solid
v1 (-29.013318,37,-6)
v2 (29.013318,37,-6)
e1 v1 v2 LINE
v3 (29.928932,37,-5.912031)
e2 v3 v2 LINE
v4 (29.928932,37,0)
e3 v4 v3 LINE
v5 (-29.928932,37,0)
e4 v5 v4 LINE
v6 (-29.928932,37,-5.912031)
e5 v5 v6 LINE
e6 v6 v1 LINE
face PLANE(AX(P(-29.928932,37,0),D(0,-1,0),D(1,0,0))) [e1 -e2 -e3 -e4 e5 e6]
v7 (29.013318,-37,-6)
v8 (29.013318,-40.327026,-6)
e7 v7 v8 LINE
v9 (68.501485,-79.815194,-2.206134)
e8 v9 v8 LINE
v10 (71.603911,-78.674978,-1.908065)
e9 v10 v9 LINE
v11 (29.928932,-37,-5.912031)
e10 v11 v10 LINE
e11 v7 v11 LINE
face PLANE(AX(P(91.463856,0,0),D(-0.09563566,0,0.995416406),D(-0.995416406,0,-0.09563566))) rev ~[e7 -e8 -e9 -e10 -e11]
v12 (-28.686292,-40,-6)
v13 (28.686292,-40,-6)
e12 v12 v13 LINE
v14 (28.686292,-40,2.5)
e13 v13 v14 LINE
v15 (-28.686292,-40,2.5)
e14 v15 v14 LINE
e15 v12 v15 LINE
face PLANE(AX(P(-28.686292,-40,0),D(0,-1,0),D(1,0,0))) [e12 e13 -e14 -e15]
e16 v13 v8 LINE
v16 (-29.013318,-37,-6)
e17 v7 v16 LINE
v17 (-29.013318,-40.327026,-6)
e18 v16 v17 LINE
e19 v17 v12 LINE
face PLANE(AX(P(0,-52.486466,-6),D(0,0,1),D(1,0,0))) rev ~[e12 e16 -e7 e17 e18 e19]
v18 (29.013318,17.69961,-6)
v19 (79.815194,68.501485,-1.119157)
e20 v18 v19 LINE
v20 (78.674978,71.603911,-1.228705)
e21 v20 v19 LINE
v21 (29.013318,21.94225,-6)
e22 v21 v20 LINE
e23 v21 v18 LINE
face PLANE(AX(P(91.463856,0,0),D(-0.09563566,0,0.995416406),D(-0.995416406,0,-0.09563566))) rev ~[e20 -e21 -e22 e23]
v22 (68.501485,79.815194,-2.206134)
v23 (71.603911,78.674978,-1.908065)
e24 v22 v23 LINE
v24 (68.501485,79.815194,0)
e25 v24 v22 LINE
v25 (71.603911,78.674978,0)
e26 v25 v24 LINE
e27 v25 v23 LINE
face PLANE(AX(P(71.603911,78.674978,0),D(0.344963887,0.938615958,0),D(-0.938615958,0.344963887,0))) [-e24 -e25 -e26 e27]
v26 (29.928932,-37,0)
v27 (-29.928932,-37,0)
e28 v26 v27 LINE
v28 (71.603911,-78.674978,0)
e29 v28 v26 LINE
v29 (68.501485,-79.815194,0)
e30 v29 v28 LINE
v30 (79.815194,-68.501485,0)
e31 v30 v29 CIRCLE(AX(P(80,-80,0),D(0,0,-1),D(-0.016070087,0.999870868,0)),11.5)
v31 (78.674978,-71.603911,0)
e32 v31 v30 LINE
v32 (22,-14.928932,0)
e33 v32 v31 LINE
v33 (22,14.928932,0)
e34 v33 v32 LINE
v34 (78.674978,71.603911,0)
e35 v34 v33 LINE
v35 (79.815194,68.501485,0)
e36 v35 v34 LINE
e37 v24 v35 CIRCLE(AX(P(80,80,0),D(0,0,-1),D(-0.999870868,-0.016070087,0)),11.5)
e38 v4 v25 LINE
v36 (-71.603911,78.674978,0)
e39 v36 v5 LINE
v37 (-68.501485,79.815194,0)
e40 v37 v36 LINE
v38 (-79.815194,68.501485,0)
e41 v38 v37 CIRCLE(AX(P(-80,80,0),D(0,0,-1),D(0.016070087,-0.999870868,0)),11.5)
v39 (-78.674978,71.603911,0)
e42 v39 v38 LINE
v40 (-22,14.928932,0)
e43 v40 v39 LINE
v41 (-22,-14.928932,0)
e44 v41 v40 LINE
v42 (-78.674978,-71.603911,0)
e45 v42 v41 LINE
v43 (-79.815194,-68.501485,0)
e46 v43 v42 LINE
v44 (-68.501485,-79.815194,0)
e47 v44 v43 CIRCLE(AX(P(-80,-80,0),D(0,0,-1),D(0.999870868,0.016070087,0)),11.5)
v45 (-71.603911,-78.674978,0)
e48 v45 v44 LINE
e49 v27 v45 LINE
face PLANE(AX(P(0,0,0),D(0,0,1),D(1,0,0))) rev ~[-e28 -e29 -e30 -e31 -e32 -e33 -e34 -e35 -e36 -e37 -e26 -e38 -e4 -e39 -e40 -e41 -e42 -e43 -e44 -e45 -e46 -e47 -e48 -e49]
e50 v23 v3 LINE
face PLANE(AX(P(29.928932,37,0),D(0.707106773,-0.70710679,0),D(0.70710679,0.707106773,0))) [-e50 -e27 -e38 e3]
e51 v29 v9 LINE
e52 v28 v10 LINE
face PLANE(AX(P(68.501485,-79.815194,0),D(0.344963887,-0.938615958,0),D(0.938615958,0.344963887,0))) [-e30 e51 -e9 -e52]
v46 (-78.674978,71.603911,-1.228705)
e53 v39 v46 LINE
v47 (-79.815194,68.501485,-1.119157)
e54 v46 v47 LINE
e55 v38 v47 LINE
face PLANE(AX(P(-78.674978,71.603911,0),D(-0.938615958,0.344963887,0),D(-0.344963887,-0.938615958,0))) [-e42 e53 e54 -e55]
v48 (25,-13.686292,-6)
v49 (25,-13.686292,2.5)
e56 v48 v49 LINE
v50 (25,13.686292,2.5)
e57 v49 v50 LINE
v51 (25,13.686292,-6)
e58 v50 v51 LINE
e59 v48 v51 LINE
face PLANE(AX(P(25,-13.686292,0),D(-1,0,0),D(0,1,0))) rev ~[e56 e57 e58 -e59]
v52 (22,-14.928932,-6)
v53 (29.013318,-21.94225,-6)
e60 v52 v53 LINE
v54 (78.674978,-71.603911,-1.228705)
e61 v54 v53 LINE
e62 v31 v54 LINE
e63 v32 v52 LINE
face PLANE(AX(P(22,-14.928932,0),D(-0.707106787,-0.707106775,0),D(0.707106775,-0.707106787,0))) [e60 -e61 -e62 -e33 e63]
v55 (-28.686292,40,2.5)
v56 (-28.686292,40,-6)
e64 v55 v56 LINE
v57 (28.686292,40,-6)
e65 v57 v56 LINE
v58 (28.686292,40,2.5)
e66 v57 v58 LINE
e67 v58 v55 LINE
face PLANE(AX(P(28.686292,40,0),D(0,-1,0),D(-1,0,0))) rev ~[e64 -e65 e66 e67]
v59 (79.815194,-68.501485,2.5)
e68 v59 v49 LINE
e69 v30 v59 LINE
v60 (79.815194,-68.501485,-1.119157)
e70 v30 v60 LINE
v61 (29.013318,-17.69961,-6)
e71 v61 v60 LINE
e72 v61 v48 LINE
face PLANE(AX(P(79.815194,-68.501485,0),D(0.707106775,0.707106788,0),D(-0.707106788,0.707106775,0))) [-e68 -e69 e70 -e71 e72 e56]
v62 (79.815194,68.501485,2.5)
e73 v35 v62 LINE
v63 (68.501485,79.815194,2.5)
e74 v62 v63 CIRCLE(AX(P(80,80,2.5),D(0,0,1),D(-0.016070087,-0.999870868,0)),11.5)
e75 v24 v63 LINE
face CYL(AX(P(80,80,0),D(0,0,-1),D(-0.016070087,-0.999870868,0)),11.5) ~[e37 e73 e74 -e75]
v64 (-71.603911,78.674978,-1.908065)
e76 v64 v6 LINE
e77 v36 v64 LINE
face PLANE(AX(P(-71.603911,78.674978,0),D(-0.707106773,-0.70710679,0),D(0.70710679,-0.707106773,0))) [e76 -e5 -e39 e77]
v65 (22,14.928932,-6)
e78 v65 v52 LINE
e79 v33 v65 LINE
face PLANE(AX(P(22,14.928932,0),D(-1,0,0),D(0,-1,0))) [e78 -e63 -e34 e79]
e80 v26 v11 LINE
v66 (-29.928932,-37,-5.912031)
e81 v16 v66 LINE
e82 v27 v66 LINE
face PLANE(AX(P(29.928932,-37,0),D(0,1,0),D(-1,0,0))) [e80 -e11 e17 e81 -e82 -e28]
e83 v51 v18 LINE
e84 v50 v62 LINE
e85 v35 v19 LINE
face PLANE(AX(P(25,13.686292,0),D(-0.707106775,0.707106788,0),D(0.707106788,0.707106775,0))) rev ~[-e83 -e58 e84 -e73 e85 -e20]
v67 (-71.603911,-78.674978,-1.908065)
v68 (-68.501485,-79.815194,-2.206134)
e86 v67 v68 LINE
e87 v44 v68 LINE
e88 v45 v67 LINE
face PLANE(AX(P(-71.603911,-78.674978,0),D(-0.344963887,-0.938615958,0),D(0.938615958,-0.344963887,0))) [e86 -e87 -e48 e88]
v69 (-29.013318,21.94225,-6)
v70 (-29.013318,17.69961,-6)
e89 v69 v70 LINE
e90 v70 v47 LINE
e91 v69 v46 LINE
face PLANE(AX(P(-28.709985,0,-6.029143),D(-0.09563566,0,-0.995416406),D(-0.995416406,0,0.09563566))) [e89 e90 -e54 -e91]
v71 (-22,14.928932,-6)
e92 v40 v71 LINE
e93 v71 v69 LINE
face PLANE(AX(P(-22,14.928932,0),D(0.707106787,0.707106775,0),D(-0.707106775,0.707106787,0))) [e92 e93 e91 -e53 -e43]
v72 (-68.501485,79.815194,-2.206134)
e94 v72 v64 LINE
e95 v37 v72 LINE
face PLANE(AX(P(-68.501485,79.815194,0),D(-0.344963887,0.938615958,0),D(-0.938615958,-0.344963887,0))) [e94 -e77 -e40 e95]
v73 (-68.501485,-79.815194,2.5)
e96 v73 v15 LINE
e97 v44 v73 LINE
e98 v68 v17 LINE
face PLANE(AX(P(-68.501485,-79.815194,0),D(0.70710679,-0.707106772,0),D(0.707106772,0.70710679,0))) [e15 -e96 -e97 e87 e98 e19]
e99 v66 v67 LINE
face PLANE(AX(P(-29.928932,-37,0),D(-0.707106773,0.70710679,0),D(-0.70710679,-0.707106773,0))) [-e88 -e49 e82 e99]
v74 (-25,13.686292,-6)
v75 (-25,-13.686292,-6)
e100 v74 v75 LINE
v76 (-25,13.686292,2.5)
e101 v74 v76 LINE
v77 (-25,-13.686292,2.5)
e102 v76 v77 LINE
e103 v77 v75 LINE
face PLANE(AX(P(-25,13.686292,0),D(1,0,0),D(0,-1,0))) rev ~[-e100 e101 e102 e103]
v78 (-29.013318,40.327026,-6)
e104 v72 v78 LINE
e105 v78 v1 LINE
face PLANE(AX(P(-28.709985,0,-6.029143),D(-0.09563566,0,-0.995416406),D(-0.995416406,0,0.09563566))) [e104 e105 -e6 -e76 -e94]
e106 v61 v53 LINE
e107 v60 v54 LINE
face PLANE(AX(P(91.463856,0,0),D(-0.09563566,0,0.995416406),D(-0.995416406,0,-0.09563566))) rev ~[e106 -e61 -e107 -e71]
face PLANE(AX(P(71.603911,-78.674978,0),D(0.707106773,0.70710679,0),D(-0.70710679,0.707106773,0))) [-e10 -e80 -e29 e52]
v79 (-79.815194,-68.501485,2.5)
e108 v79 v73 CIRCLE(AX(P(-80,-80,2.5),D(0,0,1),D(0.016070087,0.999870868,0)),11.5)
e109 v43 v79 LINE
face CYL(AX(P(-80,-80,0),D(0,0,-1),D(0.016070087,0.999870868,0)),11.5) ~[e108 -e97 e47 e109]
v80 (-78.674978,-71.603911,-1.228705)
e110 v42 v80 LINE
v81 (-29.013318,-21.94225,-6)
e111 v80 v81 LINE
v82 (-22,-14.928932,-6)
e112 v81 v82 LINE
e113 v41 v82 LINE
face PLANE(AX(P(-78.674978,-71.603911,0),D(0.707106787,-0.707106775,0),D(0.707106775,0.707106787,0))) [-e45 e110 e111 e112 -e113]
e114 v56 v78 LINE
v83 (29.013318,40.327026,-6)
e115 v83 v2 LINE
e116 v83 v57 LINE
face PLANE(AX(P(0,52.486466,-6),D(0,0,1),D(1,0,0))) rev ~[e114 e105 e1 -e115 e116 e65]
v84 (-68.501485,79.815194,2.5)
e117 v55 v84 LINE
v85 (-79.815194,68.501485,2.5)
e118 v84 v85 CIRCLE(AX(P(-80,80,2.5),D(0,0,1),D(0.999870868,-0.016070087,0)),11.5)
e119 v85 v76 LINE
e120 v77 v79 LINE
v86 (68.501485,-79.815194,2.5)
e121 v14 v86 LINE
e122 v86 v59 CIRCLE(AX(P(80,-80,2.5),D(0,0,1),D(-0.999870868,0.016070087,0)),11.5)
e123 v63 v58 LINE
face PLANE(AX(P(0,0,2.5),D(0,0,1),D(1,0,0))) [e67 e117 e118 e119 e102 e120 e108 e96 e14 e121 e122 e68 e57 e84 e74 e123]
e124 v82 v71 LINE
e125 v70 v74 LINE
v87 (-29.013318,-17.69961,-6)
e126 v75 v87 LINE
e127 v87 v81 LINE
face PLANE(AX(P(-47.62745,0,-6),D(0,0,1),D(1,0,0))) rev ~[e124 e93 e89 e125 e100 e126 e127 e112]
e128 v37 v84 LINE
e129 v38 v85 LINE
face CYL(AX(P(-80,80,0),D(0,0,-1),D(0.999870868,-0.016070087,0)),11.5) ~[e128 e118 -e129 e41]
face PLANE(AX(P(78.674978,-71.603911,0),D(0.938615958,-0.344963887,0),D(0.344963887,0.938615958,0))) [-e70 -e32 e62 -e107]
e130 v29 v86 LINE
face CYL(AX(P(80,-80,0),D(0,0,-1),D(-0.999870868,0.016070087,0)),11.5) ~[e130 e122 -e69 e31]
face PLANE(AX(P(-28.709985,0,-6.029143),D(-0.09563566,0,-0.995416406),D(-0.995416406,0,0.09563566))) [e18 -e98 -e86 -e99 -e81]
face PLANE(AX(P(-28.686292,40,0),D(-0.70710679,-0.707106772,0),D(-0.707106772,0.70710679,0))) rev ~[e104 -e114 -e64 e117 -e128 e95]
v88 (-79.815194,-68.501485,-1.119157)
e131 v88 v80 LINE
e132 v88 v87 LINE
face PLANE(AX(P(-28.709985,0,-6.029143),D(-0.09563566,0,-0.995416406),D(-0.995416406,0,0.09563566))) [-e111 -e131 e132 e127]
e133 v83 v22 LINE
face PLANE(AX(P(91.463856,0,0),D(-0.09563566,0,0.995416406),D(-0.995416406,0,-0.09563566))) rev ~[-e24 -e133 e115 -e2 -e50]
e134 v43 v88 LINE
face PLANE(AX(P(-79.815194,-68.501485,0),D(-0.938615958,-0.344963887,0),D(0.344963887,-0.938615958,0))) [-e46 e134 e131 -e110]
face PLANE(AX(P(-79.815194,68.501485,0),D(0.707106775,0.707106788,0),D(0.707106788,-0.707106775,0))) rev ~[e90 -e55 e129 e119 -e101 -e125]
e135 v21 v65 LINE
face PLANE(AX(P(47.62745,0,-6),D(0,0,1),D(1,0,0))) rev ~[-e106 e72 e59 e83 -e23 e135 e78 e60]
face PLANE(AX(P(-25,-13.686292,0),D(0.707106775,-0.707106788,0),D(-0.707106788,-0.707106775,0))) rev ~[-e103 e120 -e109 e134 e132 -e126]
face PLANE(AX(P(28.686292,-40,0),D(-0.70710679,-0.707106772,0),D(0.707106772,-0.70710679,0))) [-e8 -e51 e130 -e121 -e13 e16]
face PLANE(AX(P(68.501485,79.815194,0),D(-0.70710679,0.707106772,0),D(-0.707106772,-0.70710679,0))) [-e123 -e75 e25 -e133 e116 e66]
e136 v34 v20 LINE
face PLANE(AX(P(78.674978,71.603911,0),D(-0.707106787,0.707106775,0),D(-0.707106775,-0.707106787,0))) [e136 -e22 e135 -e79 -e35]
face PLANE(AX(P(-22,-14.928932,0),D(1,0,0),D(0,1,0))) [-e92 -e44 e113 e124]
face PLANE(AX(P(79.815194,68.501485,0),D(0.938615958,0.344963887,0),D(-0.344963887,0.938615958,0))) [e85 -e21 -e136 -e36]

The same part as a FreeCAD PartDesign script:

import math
import FreeCAD as App
import Part
import Sketcher
from FreeCAD import Vector


def add_polygon(sketch, points):
    """Adds a closed chain of lines whose ends are joined by coincident constraints."""
    first, n = sketch.GeometryCount, len(points)
    for a, b in zip(points, points[1:] + points[:1]):
        sketch.addGeometry(Part.LineSegment(App.Vector(*a, 0), App.Vector(*b, 0)), False)
    for i in range(n):
        sketch.addConstraint(Sketcher.Constraint("Coincident", first + i, 2, first + (i + 1) % n, 1))

doc = App.newDocument("Part")
body = doc.addObject("PartDesign::Body", "Body")

# Sketch on XY plane
sketch1 = body.newObject("Sketcher::SketchObject", "Sketch")
sketch1.AttachmentSupport = (doc.getObject("XY_Plane"), [""])
sketch1.MapMode = "FlatFace"
sketch1.addGeometry(Part.LineSegment(Vector(-80, 69, 0), Vector(-25, 14, 0)), False)
sketch1.addGeometry(Part.LineSegment(Vector(-25, 14, 0), Vector(-25, -14, 0)), False)
sketch1.addGeometry(Part.LineSegment(Vector(-25, -14, 0), Vector(-80, -69, 0)), False)
sketch1.addGeometry(Part.ArcOfCircle(Part.Circle(Vector(-80, -80, 0), Vector(0, 0, 1), 12), math.radians(89), math.radians(361)), False)
sketch1.addGeometry(Part.LineSegment(Vector(-69, -80, 0), Vector(-29, -40, 0)), False)
sketch1.addGeometry(Part.LineSegment(Vector(-29, -40, 0), Vector(29, -40, 0)), False)
sketch1.addGeometry(Part.LineSegment(Vector(29, -40, 0), Vector(69, -80, 0)), False)
sketch1.addGeometry(Part.ArcOfCircle(Part.Circle(Vector(80, -80, 0), Vector(0, 0, 1), 12), math.radians(179), math.radians(451)), False)
sketch1.addGeometry(Part.LineSegment(Vector(80, -69, 0), Vector(25, -14, 0)), False)
sketch1.addGeometry(Part.LineSegment(Vector(25, -14, 0), Vector(25, 14, 0)), False)
sketch1.addGeometry(Part.LineSegment(Vector(25, 14, 0), Vector(80, 69, 0)), False)
sketch1.addGeometry(Part.ArcOfCircle(Part.Circle(Vector(80, 80, 0), Vector(0, 0, 1), 12), math.radians(-91), math.radians(181)), False)
sketch1.addGeometry(Part.LineSegment(Vector(69, 80, 0), Vector(29, 40, 0)), False)
sketch1.addGeometry(Part.LineSegment(Vector(29, 40, 0), Vector(-29, 40, 0)), False)
sketch1.addGeometry(Part.LineSegment(Vector(-29, 40, 0), Vector(-69, 80, 0)), False)
sketch1.addGeometry(Part.ArcOfCircle(Part.Circle(Vector(-80, 80, 0), Vector(0, 0, 1), 12), math.radians(-1), math.radians(271)), False)
sketch1.addConstraint(Sketcher.Constraint("Coincident", 0, 2, 1, 1))
sketch1.addConstraint(Sketcher.Constraint("Coincident", 1, 2, 2, 1))
sketch1.addConstraint(Sketcher.Constraint("Coincident", 2, 2, 3, 1))
sketch1.addConstraint(Sketcher.Constraint("Coincident", 3, 2, 4, 1))
sketch1.addConstraint(Sketcher.Constraint("Coincident", 4, 2, 5, 1))
sketch1.addConstraint(Sketcher.Constraint("Coincident", 5, 2, 6, 1))
sketch1.addConstraint(Sketcher.Constraint("Coincident", 6, 2, 7, 1))
sketch1.addConstraint(Sketcher.Constraint("Coincident", 7, 2, 8, 1))
sketch1.addConstraint(Sketcher.Constraint("Coincident", 8, 2, 9, 1))
sketch1.addConstraint(Sketcher.Constraint("Coincident", 9, 2, 10, 1))
sketch1.addConstraint(Sketcher.Constraint("Coincident", 10, 2, 11, 1))
sketch1.addConstraint(Sketcher.Constraint("Coincident", 11, 2, 12, 1))
sketch1.addConstraint(Sketcher.Constraint("Coincident", 12, 2, 13, 1))
sketch1.addConstraint(Sketcher.Constraint("Coincident", 13, 2, 14, 1))
sketch1.addConstraint(Sketcher.Constraint("Coincident", 14, 2, 15, 1))
sketch1.addConstraint(Sketcher.Constraint("Coincident", 15, 2, 0, 1))
sketch1.addConstraint(Sketcher.Constraint("Vertical", 1))
sketch1.addConstraint(Sketcher.Constraint("Horizontal", 5))
sketch1.addConstraint(Sketcher.Constraint("Vertical", 9))
sketch1.addConstraint(Sketcher.Constraint("Horizontal", 13))
sketch1.addConstraint(Sketcher.Constraint("Equal", 3, 7))
sketch1.addConstraint(Sketcher.Constraint("Equal", 7, 11))
sketch1.addConstraint(Sketcher.Constraint("Equal", 11, 15))
sketch1.addConstraint(Sketcher.Constraint("Symmetric", 3, 3, 11, 3, -1, 1))
sketch1.addConstraint(Sketcher.Constraint("Symmetric", 7, 3, 15, 3, -1, 1))
sketch1.addConstraint(Sketcher.Constraint("Symmetric", 0, 2, 8, 2, -1, 1))
sketch1.addConstraint(Sketcher.Constraint("Symmetric", 4, 2, 12, 2, -1, 1))
sketch1.addConstraint(Sketcher.Constraint("Symmetric", 3, 3, 7, 3, -2))
sketch1.addConstraint(Sketcher.Constraint("Perpendicular", 0, 2))
sketch1.addConstraint(Sketcher.Constraint("Parallel", 2, 4))
sketch1.addConstraint(Sketcher.Constraint("Perpendicular", 4, 6))
sketch1.addConstraint(Sketcher.Constraint("Parallel", 6, 8))
sketch1.addConstraint(Sketcher.Constraint("Perpendicular", 8, 10))
sketch1.addConstraint(Sketcher.Constraint("Parallel", 10, 12))
sketch1.addConstraint(Sketcher.Constraint("Perpendicular", 12, 14))
sketch1.addConstraint(Sketcher.Constraint("Horizontal", 3, 2, 6, 2))
sketch1.addConstraint(Sketcher.Constraint("Horizontal", 2, 2, 7, 2))
sketch1.addConstraint(Sketcher.Constraint("Horizontal", 1, 2, 8, 2))
sketch1.addConstraint(Sketcher.Constraint("Horizontal", 0, 2, 9, 2))
sketch1.addConstraint(Sketcher.Constraint("Horizontal", 11, 2, 14, 2))
sketch1.addConstraint(Sketcher.Constraint("Radius", 3, 11.5))
sketch1.addConstraint(Sketcher.Constraint("DistanceX", 3, 3, -1, 1, 80.0))
sketch1.addConstraint(Sketcher.Constraint("DistanceY", 3, 3, -1, 1, 80.0))
sketch1.addConstraint(Sketcher.Constraint("DistanceX", 0, 2, -1, 1, 25.0))
sketch1.addConstraint(Sketcher.Constraint("DistanceY", 4, 2, -1, 1, 40.0))
sketch1.addConstraint(Sketcher.Constraint("Distance", 0, 77.52039))
sketch1.addConstraint(Sketcher.Constraint("DistanceX", 5, 1, 5, 2, 57.372584))
pad1 = body.newObject("PartDesign::Pad", "Pad")
pad1.Profile = sketch1
pad1.Length = 2.5

# Sketch on XY plane
sketch2 = body.newObject("Sketcher::SketchObject", "Sketch001")
sketch2.AttachmentSupport = (doc.getObject("XY_Plane"), [""])
sketch2.MapMode = "FlatFace"
add_polygon(sketch2, [(-29.9, -37), (-71.6, -78.7), (-68.5, -79.8), (-28.7, -40), (28.7, -40), (68.5, -79.8), (71.6, -78.7), (29.9, -37)])  # lines 0-7
add_polygon(sketch2, [(-78.7, -71.6), (-22, -14.9), (-22, 14.9), (-78.7, 71.6), (-79.8, 68.5), (-25, 13.7), (-25, -13.7), (-79.8, -68.5)])  # lines 8-15
add_polygon(sketch2, [(22, 14.9), (22, -14.9), (78.7, -71.6), (79.8, -68.5), (25, -13.7), (25, 13.7), (79.8, 68.5), (78.7, 71.6)])  # lines 16-23
add_polygon(sketch2, [(29.9, 37), (71.6, 78.7), (68.5, 79.8), (28.7, 40), (-28.7, 40), (-68.5, 79.8), (-71.6, 78.7), (-29.9, 37)])  # lines 24-31
sketch2.addConstraint(Sketcher.Constraint("Horizontal", 3))
sketch2.addConstraint(Sketcher.Constraint("Horizontal", 7))
sketch2.addConstraint(Sketcher.Constraint("Vertical", 9))
sketch2.addConstraint(Sketcher.Constraint("Vertical", 13))
sketch2.addConstraint(Sketcher.Constraint("Vertical", 16))
sketch2.addConstraint(Sketcher.Constraint("Vertical", 20))
sketch2.addConstraint(Sketcher.Constraint("Horizontal", 27))
sketch2.addConstraint(Sketcher.Constraint("Horizontal", 31))
sketch2.addConstraint(Sketcher.Constraint("Symmetric", 9, 2, 16, 2, -1, 1))
sketch2.addConstraint(Sketcher.Constraint("Symmetric", 10, 2, 17, 2, -1, 1))
sketch2.addConstraint(Sketcher.Constraint("Symmetric", 11, 2, 18, 2, -1, 1))
sketch2.addConstraint(Sketcher.Constraint("Symmetric", 12, 2, 19, 2, -1, 1))
sketch2.addConstraint(Sketcher.Constraint("Symmetric", 14, 2, 21, 2, -1, 1))
sketch2.addConstraint(Sketcher.Constraint("Symmetric", 15, 2, 22, 2, -1, 1))
sketch2.addConstraint(Sketcher.Constraint("Symmetric", 0, 2, 24, 2, -1, 1))
sketch2.addConstraint(Sketcher.Constraint("Symmetric", 1, 2, 25, 2, -1, 1))
sketch2.addConstraint(Sketcher.Constraint("Symmetric", 2, 2, 26, 2, -1, 1))
sketch2.addConstraint(Sketcher.Constraint("Symmetric", 4, 2, 28, 2, -1, 1))
sketch2.addConstraint(Sketcher.Constraint("Symmetric", 5, 2, 29, 2, -1, 1))
sketch2.addConstraint(Sketcher.Constraint("Symmetric", 6, 2, 30, 2, -1, 1))
sketch2.addConstraint(Sketcher.Constraint("Symmetric", 1, 2, 4, 2, -2))
sketch2.addConstraint(Sketcher.Constraint("Symmetric", 0, 2, 5, 2, -2))
sketch2.addConstraint(Sketcher.Constraint("Symmetric", 15, 2, 17, 2, -2))
sketch2.addConstraint(Sketcher.Constraint("Symmetric", 14, 2, 18, 2, -2))
sketch2.addConstraint(Sketcher.Constraint("Parallel", 0, 2))
sketch2.addConstraint(Sketcher.Constraint("Perpendicular", 2, 4))
sketch2.addConstraint(Sketcher.Constraint("Parallel", 4, 6))
sketch2.addConstraint(Sketcher.Constraint("Perpendicular", 6, 8))
sketch2.addConstraint(Sketcher.Constraint("Perpendicular", 8, 10))
sketch2.addConstraint(Sketcher.Constraint("Perpendicular", 1, 11))
sketch2.addConstraint(Sketcher.Constraint("Parallel", 10, 12))
sketch2.addConstraint(Sketcher.Constraint("Perpendicular", 12, 14))
sketch2.addConstraint(Sketcher.Constraint("Perpendicular", 19, 21))
sketch2.addConstraint(Sketcher.Constraint("Parallel", 21, 23))
sketch2.addConstraint(Sketcher.Constraint("Parallel", 23, 24))
sketch2.addConstraint(Sketcher.Constraint("Perpendicular", 26, 28))
sketch2.addConstraint(Sketcher.Constraint("Horizontal", 8, 2, 16, 2))
sketch2.addConstraint(Sketcher.Constraint("Equal", 5, 11))
sketch2.addConstraint(Sketcher.Constraint("DistanceY", 2, 2, -1, 1, 40.0))
sketch2.addConstraint(Sketcher.Constraint("DistanceY", 6, 2, -1, 1, 37.0))
sketch2.addConstraint(Sketcher.Constraint("DistanceX", 8, 2, -1, 1, 22.0))
sketch2.addConstraint(Sketcher.Constraint("DistanceX", 12, 2, -1, 1, 25.0))
sketch2.addConstraint(Sketcher.Constraint("Distance", 0, 58.93732))
sketch2.addConstraint(Sketcher.Constraint("Distance", 1, 3.30532))
sketch2.addConstraint(Sketcher.Constraint("Distance", 12, 77.52039))
sketch2.addConstraint(Sketcher.Constraint("DistanceX", 3, 1, 3, 2, 57.372584))
sketch2.addConstraint(Sketcher.Constraint("DistanceX", 7, 2, 7, 1, 59.857864))
sketch2.addConstraint(Sketcher.Constraint("DistanceY", 9, 1, 9, 2, 29.857864))
pad2 = body.newObject("PartDesign::Pad", "Pad001")
pad2.Profile = sketch2
pad2.Length = 6
pad2.Reversed = True

# Sketch on XZ plane
sketch3 = body.newObject("Sketcher::SketchObject", "Sketch002")
sketch3.AttachmentSupport = (doc.getObject("XZ_Plane"), [""])
sketch3.MapMode = "FlatFace"
add_polygon(sketch3, [(-29, -16), (-29, -6), (-91, 0), (-91, -16)])  # lines 0-3
add_polygon(sketch3, [(29, -6), (29, -16), (91, -16), (91, 0)])  # lines 4-7
sketch3.addConstraint(Sketcher.Constraint("Vertical", 0))
sketch3.addConstraint(Sketcher.Constraint("Vertical", 2))
sketch3.addConstraint(Sketcher.Constraint("Horizontal", 3))
sketch3.addConstraint(Sketcher.Constraint("Vertical", 4))
sketch3.addConstraint(Sketcher.Constraint("Horizontal", 5))
sketch3.addConstraint(Sketcher.Constraint("Vertical", 6))
sketch3.addConstraint(Sketcher.Constraint("Symmetric", 1, 2, 6, 2, -1, 1))
sketch3.addConstraint(Sketcher.Constraint("Symmetric", 3, 2, 4, 2, -2))
sketch3.addConstraint(Sketcher.Constraint("PointOnObject", 1, 2, -1))
sketch3.addConstraint(Sketcher.Constraint("Horizontal", 0, 2, 7, 2))
sketch3.addConstraint(Sketcher.Constraint("DistanceX", 3, 1, 3, 2, 62.753871))
sketch3.addConstraint(Sketcher.Constraint("DistanceY", 2, 2, 2, 1, 15.796961))
sketch3.addConstraint(Sketcher.Constraint("DistanceY", 0, 1, 0, 2, 9.767818))
sketch3.addConstraint(Sketcher.Constraint("DistanceX", 3, 2, 4, 2, 57.41997))
pocket1 = body.newObject("PartDesign::Pocket", "Pocket")
pocket1.Profile = sketch3
pocket1.Length = 200
pocket1.Midplane = True

doc.recompute()
